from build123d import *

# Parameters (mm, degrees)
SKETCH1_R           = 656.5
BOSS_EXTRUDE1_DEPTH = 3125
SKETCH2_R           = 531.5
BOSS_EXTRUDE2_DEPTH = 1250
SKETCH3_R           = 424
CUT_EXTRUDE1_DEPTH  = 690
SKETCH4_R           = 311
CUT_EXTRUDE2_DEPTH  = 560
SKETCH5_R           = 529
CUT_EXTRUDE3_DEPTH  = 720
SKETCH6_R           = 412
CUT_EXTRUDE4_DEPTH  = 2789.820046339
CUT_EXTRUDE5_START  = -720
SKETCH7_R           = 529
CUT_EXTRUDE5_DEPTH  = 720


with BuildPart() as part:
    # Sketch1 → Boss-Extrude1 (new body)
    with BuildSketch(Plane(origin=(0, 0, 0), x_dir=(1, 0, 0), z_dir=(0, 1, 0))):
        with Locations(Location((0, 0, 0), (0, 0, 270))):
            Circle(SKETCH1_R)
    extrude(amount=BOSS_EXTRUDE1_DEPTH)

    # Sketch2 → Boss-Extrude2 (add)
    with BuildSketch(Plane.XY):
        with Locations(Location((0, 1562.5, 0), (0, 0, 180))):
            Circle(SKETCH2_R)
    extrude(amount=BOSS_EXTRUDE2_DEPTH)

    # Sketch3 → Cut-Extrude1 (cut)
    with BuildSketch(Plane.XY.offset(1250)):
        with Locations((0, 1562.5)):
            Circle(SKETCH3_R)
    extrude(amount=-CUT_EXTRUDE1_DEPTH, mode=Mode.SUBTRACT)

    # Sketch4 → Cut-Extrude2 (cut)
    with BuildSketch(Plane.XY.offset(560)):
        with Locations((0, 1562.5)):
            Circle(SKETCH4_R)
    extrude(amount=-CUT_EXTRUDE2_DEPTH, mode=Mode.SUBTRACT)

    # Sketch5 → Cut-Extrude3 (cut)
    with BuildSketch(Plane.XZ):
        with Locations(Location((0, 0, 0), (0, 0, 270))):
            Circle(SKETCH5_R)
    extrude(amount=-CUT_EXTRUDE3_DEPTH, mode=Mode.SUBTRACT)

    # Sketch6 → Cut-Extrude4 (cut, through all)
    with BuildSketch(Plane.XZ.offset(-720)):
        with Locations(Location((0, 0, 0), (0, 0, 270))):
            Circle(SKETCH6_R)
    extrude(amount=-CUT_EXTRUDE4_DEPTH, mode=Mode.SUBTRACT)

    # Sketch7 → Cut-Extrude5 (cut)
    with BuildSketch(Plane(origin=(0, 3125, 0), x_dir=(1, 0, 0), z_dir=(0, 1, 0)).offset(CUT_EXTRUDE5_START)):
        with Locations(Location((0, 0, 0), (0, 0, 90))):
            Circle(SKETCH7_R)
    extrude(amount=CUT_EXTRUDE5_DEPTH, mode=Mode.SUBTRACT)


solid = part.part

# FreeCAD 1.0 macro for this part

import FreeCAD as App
import Part
import Sketcher

V = App.Vector
Q = App.Units.Quantity

doc = App.newDocument("Part")
params = doc.addObject("Spreadsheet::Sheet", "Params")
for row, (alias, value) in enumerate([
    ("sketch1_diameter", "1313 mm"),
    ("pad1_length", "3125 mm"),
    ("sketch2_diameter", "1063 mm"),
    ("pad2_length", "1250 mm"),
    ("sketch3_diameter", "848 mm"),
    ("pocket1_length", "690 mm"),
    ("sketch4_diameter", "622 mm"),
    ("pocket2_length", "560 mm"),
    ("sketch5_diameter", "1058 mm"),
    ("pocket3_length", "720 mm"),
    ("sketch6_diameter", "824 mm"),
    ("sketch7_diameter", "1058 mm"),
    ("pocket5_length", "720 mm"),
], start=1):
    params.set(f"A{row}", alias)
    params.set(f"B{row}", "=" + value)
    params.setAlias(f"B{row}", alias)

body = doc.addObject("PartDesign::Body", "Body")

sketch1 = body.newObject("Sketcher::SketchObject", "Sketch")
sketch1.AttachmentSupport = (doc.getObject("XZ_Plane"), [""])
sketch1.MapMode = "FlatFace"
sketch1.addGeometry(Part.Circle(V(0, 0, 0), V(0, 0, 1), 656.5), False)
sketch1.addConstraint(Sketcher.Constraint("Coincident", 0, 3, -1, 1))
sketch1.addConstraint(Sketcher.Constraint("Diameter", 0, Q("1313 mm")))
sketch1.setExpression("Constraints[1]", "Params.sketch1_diameter")
pad1 = body.newObject("PartDesign::Pad", "Pad")
pad1.Profile = sketch1
pad1.setExpression("Length", "Params.pad1_length")
pad1.Reversed = True

sketch2 = body.newObject("Sketcher::SketchObject", "Sketch001")
sketch2.AttachmentSupport = (doc.getObject("XY_Plane"), [""])
sketch2.MapMode = "FlatFace"
sketch2.addGeometry(Part.Circle(V(0, 1562.5, 0), V(0, 0, 1), 531.5), False)
sketch2.addConstraint(Sketcher.Constraint("PointOnObject", 0, 3, -2))
sketch2.addConstraint(Sketcher.Constraint("Diameter", 0, Q("1063 mm")))
sketch2.addConstraint(Sketcher.Constraint("DistanceY", -1, 1, 0, 3, Q("1562.5 mm")))
sketch2.setExpression("Constraints[1]", "Params.sketch2_diameter")
pad2 = body.newObject("PartDesign::Pad", "Pad001")
pad2.Profile = sketch2
pad2.setExpression("Length", "Params.pad2_length")

sketch3 = body.newObject("Sketcher::SketchObject", "Sketch002")
sketch3.AttachmentSupport = (doc.getObject("XY_Plane"), [""])
sketch3.MapMode = "FlatFace"
sketch3.AttachmentOffset = App.Placement(V(0, 0, 1250), App.Rotation())
sketch3.addGeometry(Part.Circle(V(0, 1562.5, 0), V(0, 0, 1), 424), False)
sketch3.addConstraint(Sketcher.Constraint("PointOnObject", 0, 3, -2))
sketch3.addConstraint(Sketcher.Constraint("Diameter", 0, Q("848 mm")))
sketch3.addConstraint(Sketcher.Constraint("DistanceY", -1, 1, 0, 3, Q("1562.5 mm")))
sketch3.setExpression("Constraints[1]", "Params.sketch3_diameter")
pocket1 = body.newObject("PartDesign::Pocket", "Pocket")
pocket1.Profile = sketch3
pocket1.setExpression("Length", "Params.pocket1_length")

sketch4 = body.newObject("Sketcher::SketchObject", "Sketch003")
sketch4.AttachmentSupport = (doc.getObject("XY_Plane"), [""])
sketch4.MapMode = "FlatFace"
sketch4.AttachmentOffset = App.Placement(V(0, 0, 560), App.Rotation())
sketch4.addGeometry(Part.Circle(V(0, 1562.5, 0), V(0, 0, 1), 311), False)
sketch4.addConstraint(Sketcher.Constraint("PointOnObject", 0, 3, -2))
sketch4.addConstraint(Sketcher.Constraint("Diameter", 0, Q("622 mm")))
sketch4.addConstraint(Sketcher.Constraint("DistanceY", -1, 1, 0, 3, Q("1562.5 mm")))
sketch4.setExpression("Constraints[1]", "Params.sketch4_diameter")
pocket2 = body.newObject("PartDesign::Pocket", "Pocket001")
pocket2.Profile = sketch4
pocket2.setExpression("Length", "Params.pocket2_length")

sketch5 = body.newObject("Sketcher::SketchObject", "Sketch004")
sketch5.AttachmentSupport = (doc.getObject("XZ_Plane"), [""])
sketch5.MapMode = "FlatFace"
sketch5.addGeometry(Part.Circle(V(0, 0, 0), V(0, 0, 1), 529), False)
sketch5.addConstraint(Sketcher.Constraint("Coincident", 0, 3, -1, 1))
sketch5.addConstraint(Sketcher.Constraint("Diameter", 0, Q("1058 mm")))
sketch5.setExpression("Constraints[1]", "Params.sketch5_diameter")
pocket3 = body.newObject("PartDesign::Pocket", "Pocket002")
pocket3.Profile = sketch5
pocket3.setExpression("Length", "Params.pocket3_length")

sketch6 = body.newObject("Sketcher::SketchObject", "Sketch005")
sketch6.AttachmentSupport = (doc.getObject("XZ_Plane"), [""])
sketch6.MapMode = "FlatFace"
sketch6.AttachmentOffset = App.Placement(V(0, 0, -720), App.Rotation())
sketch6.addGeometry(Part.Circle(V(0, 0, 0), V(0, 0, 1), 412), False)
sketch6.addConstraint(Sketcher.Constraint("Coincident", 0, 3, -1, 1))
sketch6.addConstraint(Sketcher.Constraint("Diameter", 0, Q("824 mm")))
sketch6.setExpression("Constraints[1]", "Params.sketch6_diameter")
pocket4 = body.newObject("PartDesign::Pocket", "Pocket003")
pocket4.Profile = sketch6
pocket4.Type = "ThroughAll"

sketch7 = body.newObject("Sketcher::SketchObject", "Sketch006")
sketch7.AttachmentSupport = (doc.getObject("XZ_Plane"), [""])
sketch7.MapMode = "FlatFace"
sketch7.AttachmentOffset = App.Placement(V(0, 0, -2405), App.Rotation())
sketch7.addGeometry(Part.Circle(V(0, 0, 0), V(0, 0, 1), 529), False)
sketch7.addConstraint(Sketcher.Constraint("Coincident", 0, 3, -1, 1))
sketch7.addConstraint(Sketcher.Constraint("Diameter", 0, Q("1058 mm")))
sketch7.setExpression("Constraints[1]", "Params.sketch7_diameter")
pocket5 = body.newObject("PartDesign::Pocket", "Pocket004")
pocket5.Profile = sketch7
pocket5.setExpression("Length", "Params.pocket5_length")

doc.recompute()
